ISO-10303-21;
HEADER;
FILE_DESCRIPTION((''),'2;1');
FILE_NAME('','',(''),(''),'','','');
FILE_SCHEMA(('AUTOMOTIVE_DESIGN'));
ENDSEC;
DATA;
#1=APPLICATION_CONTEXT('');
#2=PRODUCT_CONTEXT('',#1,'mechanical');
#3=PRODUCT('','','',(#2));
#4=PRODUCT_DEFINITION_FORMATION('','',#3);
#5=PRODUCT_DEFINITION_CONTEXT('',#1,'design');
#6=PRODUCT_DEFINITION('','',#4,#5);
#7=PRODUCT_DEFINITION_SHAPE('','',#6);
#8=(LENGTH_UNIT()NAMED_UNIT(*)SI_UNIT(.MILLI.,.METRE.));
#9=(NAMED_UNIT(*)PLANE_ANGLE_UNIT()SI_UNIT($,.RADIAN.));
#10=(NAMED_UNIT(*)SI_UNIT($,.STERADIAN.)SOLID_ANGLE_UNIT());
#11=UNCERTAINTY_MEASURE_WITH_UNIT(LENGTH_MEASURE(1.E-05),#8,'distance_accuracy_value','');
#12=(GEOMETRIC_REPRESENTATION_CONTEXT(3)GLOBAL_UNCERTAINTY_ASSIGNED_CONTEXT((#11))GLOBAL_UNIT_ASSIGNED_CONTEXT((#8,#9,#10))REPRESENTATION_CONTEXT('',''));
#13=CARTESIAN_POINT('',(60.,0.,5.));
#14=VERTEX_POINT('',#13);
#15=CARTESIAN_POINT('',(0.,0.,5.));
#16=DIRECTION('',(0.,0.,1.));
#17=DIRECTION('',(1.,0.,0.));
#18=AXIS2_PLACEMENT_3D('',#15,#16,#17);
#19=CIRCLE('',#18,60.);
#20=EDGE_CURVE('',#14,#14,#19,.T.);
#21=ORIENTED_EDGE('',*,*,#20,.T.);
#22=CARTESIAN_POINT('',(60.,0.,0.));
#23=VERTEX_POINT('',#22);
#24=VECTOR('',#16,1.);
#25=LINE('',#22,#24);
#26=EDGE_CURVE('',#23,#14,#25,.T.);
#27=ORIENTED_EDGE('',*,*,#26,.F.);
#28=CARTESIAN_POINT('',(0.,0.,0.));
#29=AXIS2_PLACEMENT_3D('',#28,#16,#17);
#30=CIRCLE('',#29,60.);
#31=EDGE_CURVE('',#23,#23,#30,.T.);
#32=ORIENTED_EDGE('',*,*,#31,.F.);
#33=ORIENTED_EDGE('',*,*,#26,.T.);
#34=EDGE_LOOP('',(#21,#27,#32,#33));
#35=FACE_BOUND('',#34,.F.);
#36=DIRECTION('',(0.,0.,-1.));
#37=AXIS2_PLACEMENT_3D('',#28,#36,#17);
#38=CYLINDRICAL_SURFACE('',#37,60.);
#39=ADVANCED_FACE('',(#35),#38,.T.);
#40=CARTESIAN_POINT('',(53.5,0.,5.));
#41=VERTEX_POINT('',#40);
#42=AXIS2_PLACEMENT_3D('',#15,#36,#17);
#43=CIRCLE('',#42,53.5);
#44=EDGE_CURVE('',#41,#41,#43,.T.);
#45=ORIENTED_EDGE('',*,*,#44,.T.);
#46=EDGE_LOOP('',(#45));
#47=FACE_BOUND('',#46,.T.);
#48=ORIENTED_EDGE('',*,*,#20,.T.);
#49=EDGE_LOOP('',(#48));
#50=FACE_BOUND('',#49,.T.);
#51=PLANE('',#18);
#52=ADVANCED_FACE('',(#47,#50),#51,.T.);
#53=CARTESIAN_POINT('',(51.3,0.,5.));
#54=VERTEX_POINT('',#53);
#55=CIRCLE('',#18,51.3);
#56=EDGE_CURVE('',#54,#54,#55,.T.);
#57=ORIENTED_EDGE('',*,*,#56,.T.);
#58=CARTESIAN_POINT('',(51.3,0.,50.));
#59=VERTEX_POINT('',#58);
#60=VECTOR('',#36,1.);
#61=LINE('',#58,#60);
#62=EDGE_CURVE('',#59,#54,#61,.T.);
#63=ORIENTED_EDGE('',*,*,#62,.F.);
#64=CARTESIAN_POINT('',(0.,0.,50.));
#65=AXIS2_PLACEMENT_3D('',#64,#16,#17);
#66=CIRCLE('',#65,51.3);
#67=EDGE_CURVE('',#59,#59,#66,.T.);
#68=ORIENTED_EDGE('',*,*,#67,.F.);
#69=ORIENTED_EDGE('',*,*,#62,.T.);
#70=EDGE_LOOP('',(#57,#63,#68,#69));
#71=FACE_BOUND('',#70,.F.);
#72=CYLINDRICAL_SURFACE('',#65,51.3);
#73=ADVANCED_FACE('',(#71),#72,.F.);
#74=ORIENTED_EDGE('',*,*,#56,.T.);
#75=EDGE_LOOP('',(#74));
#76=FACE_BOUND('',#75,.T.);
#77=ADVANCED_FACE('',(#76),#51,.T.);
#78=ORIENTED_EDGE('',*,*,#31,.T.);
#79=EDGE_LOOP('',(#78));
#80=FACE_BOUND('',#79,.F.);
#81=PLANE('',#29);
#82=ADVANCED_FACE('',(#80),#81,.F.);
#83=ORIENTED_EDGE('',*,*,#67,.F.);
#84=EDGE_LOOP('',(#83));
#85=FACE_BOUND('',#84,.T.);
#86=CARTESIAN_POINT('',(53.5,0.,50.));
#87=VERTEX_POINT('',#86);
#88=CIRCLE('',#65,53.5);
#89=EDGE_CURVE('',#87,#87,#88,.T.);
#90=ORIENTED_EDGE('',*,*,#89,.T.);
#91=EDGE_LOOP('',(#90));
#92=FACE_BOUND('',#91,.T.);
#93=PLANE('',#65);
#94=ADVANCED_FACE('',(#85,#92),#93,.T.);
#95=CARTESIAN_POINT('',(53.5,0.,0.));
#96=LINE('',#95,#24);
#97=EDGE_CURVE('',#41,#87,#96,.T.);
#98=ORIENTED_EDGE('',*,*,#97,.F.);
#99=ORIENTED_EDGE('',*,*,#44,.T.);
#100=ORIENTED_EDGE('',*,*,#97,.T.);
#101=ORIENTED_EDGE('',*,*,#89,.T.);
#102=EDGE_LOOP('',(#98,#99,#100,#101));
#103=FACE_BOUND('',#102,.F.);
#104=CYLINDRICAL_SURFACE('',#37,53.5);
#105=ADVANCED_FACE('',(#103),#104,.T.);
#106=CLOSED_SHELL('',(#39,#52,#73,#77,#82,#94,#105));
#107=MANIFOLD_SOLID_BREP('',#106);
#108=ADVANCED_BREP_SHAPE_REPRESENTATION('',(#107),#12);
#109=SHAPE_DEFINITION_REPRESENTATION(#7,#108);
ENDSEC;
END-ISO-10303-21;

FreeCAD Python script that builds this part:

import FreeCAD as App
import Part
import Sketcher

V = App.Vector
Q = App.Units.Quantity

doc = App.newDocument("Part")
body = doc.addObject("PartDesign::Body", "Body")

# Sketch on XY plane
sketch1 = doc.addObject("Sketcher::SketchObject", "Sketch")
body.addObject(sketch1)
sketch1.AttachmentSupport = (doc.XY_Plane, [""])
sketch1.MapMode = "FlatFace"
sketch1.addGeometry(Part.Circle(V(0, 0, 0), V(0, 0, 1), 60), False)
sketch1.addConstraint(Sketcher.Constraint("Coincident", 0, 3, -1, 1))
sketch1.addConstraint(Sketcher.Constraint("Diameter", 0, Q("120 mm")))
pad1 = doc.addObject("PartDesign::Pad", "Pad")
body.addObject(pad1)
pad1.Profile = sketch1
pad1.Length = 5

# Sketch on XY plane
sketch2 = doc.addObject("Sketcher::SketchObject", "Sketch001")
body.addObject(sketch2)
sketch2.AttachmentSupport = (doc.XY_Plane, [""])
sketch2.MapMode = "FlatFace"
sketch2.addGeometry(Part.Circle(V(0, 0, 0), V(0, 0, 1), 54), False)
sketch2.addConstraint(Sketcher.Constraint("Coincident", 0, 3, -1, 1))
sketch2.addConstraint(Sketcher.Constraint("Diameter", 0, Q("107 mm")))
pad2 = doc.addObject("PartDesign::Pad", "Pad001")
body.addObject(pad2)
pad2.Profile = sketch2
pad2.Length = 50

# Sketch on XY plane
sketch3 = doc.addObject("Sketcher::SketchObject", "Sketch002")
body.addObject(sketch3)
sketch3.AttachmentSupport = (doc.XY_Plane, [""])
sketch3.MapMode = "FlatFace"
sketch3.AttachmentOffset = App.Placement(V(0, 0, 50), App.Rotation())
sketch3.addGeometry(Part.Circle(V(0, 0, 0), V(0, 0, 1), 51), False)
sketch3.addConstraint(Sketcher.Constraint("Coincident", 0, 3, -1, 1))
sketch3.addConstraint(Sketcher.Constraint("Diameter", 0, Q("102.6 mm")))
pocket1 = doc.addObject("PartDesign::Pocket", "Pocket")
body.addObject(pocket1)
pocket1.Profile = sketch3
pocket1.Length = 45

doc.recompute()
